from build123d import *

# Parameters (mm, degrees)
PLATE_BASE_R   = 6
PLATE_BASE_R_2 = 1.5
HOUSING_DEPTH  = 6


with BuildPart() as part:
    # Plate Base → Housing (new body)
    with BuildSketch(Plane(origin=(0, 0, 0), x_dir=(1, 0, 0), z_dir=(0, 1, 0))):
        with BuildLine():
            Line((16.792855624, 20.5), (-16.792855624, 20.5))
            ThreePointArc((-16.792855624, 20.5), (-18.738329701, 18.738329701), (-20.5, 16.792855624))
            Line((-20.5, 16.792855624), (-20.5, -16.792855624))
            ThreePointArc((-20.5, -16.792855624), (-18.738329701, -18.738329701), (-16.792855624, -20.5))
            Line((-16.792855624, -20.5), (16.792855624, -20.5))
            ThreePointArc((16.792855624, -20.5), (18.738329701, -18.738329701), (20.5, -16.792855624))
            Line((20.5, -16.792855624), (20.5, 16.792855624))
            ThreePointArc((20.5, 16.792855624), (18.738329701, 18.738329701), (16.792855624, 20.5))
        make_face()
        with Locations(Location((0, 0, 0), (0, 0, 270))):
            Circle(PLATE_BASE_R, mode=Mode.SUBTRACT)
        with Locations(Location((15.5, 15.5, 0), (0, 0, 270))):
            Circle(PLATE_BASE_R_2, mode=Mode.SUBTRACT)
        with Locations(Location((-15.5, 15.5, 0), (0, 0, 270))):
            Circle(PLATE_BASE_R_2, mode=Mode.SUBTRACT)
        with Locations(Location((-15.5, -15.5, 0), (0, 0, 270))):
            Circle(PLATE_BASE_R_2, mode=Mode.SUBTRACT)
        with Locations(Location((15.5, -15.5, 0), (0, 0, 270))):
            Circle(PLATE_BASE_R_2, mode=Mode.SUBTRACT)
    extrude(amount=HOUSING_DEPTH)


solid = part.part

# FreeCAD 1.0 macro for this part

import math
import FreeCAD as App
import Part
import Sketcher

doc = App.newDocument("Part")
body = doc.addObject("PartDesign::Body", "Body")

# Sketch on XZ plane
sketch1 = body.newObject("Sketcher::SketchObject", "Sketch")
sketch1.AttachmentSupport = (doc.getObject("XZ_Plane"), [""])
sketch1.MapMode = "FlatFace"
sketch1.addGeometry([
    Part.LineSegment(App.Vector(16.792856, -20.5, 0), App.Vector(-16.792856, -20.5, 0)),  # 0
    Part.ArcOfCircle(Part.Circle(App.Vector(0, 0, 0), App.Vector(0, 0, 1), 26.5), math.radians(-140.676911), math.radians(-129.323089)),  # 1
    Part.LineSegment(App.Vector(-20.5, -16.792856, 0), App.Vector(-20.5, 16.792856, 0)),  # 2
    Part.ArcOfCircle(Part.Circle(App.Vector(0, 0, 0), App.Vector(0, 0, 1), 26.5), math.radians(129.323089), math.radians(140.676911)),  # 3
    Part.LineSegment(App.Vector(-16.792856, 20.5, 0), App.Vector(16.792856, 20.5, 0)),  # 4
    Part.ArcOfCircle(Part.Circle(App.Vector(0, 0, 0), App.Vector(0, 0, 1), 26.5), math.radians(39.323089), math.radians(50.676911)),  # 5
    Part.LineSegment(App.Vector(20.5, 16.792856, 0), App.Vector(20.5, -16.792856, 0)),  # 6
    Part.ArcOfCircle(Part.Circle(App.Vector(0, 0, 0), App.Vector(0, 0, 1), 26.5), math.radians(-50.676911), math.radians(-39.323089)),  # 7
    Part.Circle(App.Vector(-15.5, 15.5, 0), App.Vector(0, 0, 1), 1.5),  # 8
    Part.Circle(App.Vector(15.5, 15.5, 0), App.Vector(0, 0, 1), 1.5),  # 9
    Part.Circle(App.Vector(-15.5, -15.5, 0), App.Vector(0, 0, 1), 1.5),  # 10
    Part.Circle(App.Vector(0, 0, 0), App.Vector(0, 0, 1), 6),  # 11
    Part.Circle(App.Vector(15.5, -15.5, 0), App.Vector(0, 0, 1), 1.5),  # 12
], False)
sketch1.addConstraint([
    Sketcher.Constraint("Coincident", 0, 2, 1, 2),
    Sketcher.Constraint("Coincident", 1, 1, 2, 1),
    Sketcher.Constraint("Coincident", 2, 2, 3, 2),
    Sketcher.Constraint("Coincident", 3, 1, 4, 1),
    Sketcher.Constraint("Coincident", 4, 2, 5, 2),
    Sketcher.Constraint("Coincident", 5, 1, 6, 1),
    Sketcher.Constraint("Coincident", 6, 2, 7, 2),
    Sketcher.Constraint("Coincident", 7, 1, 0, 1),
    Sketcher.Constraint("Horizontal", 0),
    Sketcher.Constraint("Vertical", 2),
    Sketcher.Constraint("Horizontal", 4),
    Sketcher.Constraint("Vertical", 6),
    Sketcher.Constraint("Coincident", 1, 3, -1, 1),
    Sketcher.Constraint("Coincident", 3, 3, -1, 1),
    Sketcher.Constraint("Coincident", 5, 3, -1, 1),
    Sketcher.Constraint("Coincident", 7, 3, -1, 1),
    Sketcher.Constraint("Coincident", 11, 3, -1, 1),
    Sketcher.Constraint("Equal", 1, 3),
    Sketcher.Constraint("Equal", 3, 5),
    Sketcher.Constraint("Equal", 5, 7),
    Sketcher.Constraint("Equal", 8, 9),
    Sketcher.Constraint("Equal", 9, 10),
    Sketcher.Constraint("Equal", 10, 12),
    Sketcher.Constraint("Symmetric", 9, 3, 10, 3, -1, 1),
    Sketcher.Constraint("Symmetric", 8, 3, 12, 3, -1, 1),
    Sketcher.Constraint("Symmetric", 8, 3, 9, 3, -2),
    Sketcher.Constraint("Horizontal", 2, 2, 5, 1),
    Sketcher.Constraint("Vertical", 0, 2, 3, 1),
    Sketcher.Constraint("Equal", 4, 2),
    Sketcher.Constraint("Diameter", 8, 3.0),
    Sketcher.Constraint("Diameter", 11, 12.0),
    Sketcher.Constraint("Radius", 1, 26.5),
    Sketcher.Constraint("DistanceX", 8, 3, 9, 3, 31.0),
    Sketcher.Constraint("DistanceY", 10, 3, 8, 3, 31.0),
    Sketcher.Constraint("DistanceY", 0, 2, 10, 3, 5.0),
])
pad1 = body.newObject("PartDesign::Pad", "Pad")
pad1.Profile = sketch1
pad1.Length = 6
pad1.Reversed = True

doc.recompute()
